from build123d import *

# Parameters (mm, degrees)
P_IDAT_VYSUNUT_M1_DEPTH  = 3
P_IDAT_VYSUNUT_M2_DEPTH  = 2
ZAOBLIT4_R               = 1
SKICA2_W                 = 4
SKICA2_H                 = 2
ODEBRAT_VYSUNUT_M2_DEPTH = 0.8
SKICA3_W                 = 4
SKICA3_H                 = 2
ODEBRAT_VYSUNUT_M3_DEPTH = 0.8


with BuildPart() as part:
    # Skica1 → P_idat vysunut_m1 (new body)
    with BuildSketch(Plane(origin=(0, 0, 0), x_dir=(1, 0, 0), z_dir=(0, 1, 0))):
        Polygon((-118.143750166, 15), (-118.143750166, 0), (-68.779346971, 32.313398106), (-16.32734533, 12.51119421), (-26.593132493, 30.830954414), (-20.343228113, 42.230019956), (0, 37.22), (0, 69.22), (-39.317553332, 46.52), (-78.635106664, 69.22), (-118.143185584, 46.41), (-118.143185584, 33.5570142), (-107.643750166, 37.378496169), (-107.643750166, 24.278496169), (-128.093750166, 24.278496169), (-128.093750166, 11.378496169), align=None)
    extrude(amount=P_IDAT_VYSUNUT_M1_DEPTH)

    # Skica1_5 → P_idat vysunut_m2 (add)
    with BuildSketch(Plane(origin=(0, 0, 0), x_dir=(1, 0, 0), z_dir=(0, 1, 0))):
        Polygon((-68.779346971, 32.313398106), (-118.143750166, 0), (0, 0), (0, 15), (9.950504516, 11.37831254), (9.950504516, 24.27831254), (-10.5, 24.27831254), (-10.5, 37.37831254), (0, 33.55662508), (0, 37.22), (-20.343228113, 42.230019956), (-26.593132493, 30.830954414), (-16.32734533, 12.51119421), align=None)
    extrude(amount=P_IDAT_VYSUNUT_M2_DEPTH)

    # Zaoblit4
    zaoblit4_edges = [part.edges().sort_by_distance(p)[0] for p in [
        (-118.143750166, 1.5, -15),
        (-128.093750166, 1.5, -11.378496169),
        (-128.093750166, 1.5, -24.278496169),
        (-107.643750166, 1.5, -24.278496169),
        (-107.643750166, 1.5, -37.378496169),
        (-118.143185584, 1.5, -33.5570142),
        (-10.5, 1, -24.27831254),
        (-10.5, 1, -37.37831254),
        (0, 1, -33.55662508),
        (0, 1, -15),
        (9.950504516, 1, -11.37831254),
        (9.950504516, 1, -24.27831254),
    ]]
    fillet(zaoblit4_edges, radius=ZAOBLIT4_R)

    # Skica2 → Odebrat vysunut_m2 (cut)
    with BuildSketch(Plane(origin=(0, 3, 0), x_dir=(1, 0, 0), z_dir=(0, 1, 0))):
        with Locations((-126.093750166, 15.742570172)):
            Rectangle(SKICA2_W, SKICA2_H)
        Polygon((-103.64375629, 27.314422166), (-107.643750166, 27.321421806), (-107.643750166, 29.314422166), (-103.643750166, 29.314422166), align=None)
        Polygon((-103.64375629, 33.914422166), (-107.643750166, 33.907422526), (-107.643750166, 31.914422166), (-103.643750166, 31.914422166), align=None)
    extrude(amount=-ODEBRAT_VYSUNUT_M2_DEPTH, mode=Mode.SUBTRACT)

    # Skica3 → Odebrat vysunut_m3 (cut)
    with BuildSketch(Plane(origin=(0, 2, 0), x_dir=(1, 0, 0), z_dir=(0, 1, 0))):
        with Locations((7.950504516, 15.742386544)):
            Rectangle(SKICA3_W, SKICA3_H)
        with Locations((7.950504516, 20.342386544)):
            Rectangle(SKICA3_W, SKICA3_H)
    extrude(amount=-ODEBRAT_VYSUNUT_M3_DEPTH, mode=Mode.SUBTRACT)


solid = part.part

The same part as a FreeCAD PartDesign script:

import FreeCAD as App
import Part
import Sketcher
Q = App.Units.Quantity


def edges_at(feature, points):
    """Names of the edges that pass closest to the given points."""
    edges = feature.Shape.Edges
    near = lambda p: min(range(len(edges)), key=lambda i: edges[i].distToShape(Part.Vertex(*p))[0])
    return sorted({f"Edge{near(p) + 1}" for p in points})

doc = App.newDocument("Part")
body = doc.addObject("PartDesign::Body", "Body")

# Sketch on XZ plane
sketch1 = body.newObject("Sketcher::SketchObject", "Sketch")
sketch1.AttachmentSupport = (doc.getObject("XZ_Plane"), [""])
sketch1.MapMode = "FlatFace"
sketch1.addGeometry([
    Part.LineSegment(App.Vector(-118, -15, 0), App.Vector(-118, 0, 0)),  # 0
    Part.LineSegment(App.Vector(-118, 0, 0), App.Vector(-69, -32, 0)),  # 1
    Part.LineSegment(App.Vector(-69, -32, 0), App.Vector(-16, -13, 0)),  # 2
    Part.LineSegment(App.Vector(-16, -13, 0), App.Vector(-27, -31, 0)),  # 3
    Part.LineSegment(App.Vector(-27, -31, 0), App.Vector(-20, -42, 0)),  # 4
    Part.LineSegment(App.Vector(-20, -42, 0), App.Vector(0, -37, 0)),  # 5
    Part.LineSegment(App.Vector(0, -37, 0), App.Vector(0, -69, 0)),  # 6
    Part.LineSegment(App.Vector(0, -69, 0), App.Vector(-39, -47, 0)),  # 7
    Part.LineSegment(App.Vector(-39, -47, 0), App.Vector(-79, -69, 0)),  # 8
    Part.LineSegment(App.Vector(-79, -69, 0), App.Vector(-118, -46, 0)),  # 9
    Part.LineSegment(App.Vector(-118, -46, 0), App.Vector(-118, -34, 0)),  # 10
    Part.LineSegment(App.Vector(-118, -34, 0), App.Vector(-108, -37, 0)),  # 11
    Part.LineSegment(App.Vector(-108, -37, 0), App.Vector(-108, -24, 0)),  # 12
    Part.LineSegment(App.Vector(-108, -24, 0), App.Vector(-128, -24, 0)),  # 13
    Part.LineSegment(App.Vector(-128, -24, 0), App.Vector(-128, -11, 0)),  # 14
    Part.LineSegment(App.Vector(-128, -11, 0), App.Vector(-118, -15, 0)),  # 15
], False)
sketch1.addConstraint([
    Sketcher.Constraint("Coincident", 0, 2, 1, 1),
    Sketcher.Constraint("Coincident", 1, 2, 2, 1),
    Sketcher.Constraint("Coincident", 2, 2, 3, 1),
    Sketcher.Constraint("Coincident", 3, 2, 4, 1),
    Sketcher.Constraint("Coincident", 4, 2, 5, 1),
    Sketcher.Constraint("Coincident", 5, 2, 6, 1),
    Sketcher.Constraint("Coincident", 6, 2, 7, 1),
    Sketcher.Constraint("Coincident", 7, 2, 8, 1),
    Sketcher.Constraint("Coincident", 8, 2, 9, 1),
    Sketcher.Constraint("Coincident", 9, 2, 10, 1),
    Sketcher.Constraint("Coincident", 10, 2, 11, 1),
    Sketcher.Constraint("Coincident", 11, 2, 12, 1),
    Sketcher.Constraint("Coincident", 12, 2, 13, 1),
    Sketcher.Constraint("Coincident", 13, 2, 14, 1),
    Sketcher.Constraint("Coincident", 14, 2, 15, 1),
    Sketcher.Constraint("Coincident", 15, 2, 0, 1),
    Sketcher.Constraint("Vertical", 0),
    Sketcher.Constraint("Vertical", 6),
    Sketcher.Constraint("Vertical", 10),
    Sketcher.Constraint("Vertical", 12),
    Sketcher.Constraint("Horizontal", 13),
    Sketcher.Constraint("Vertical", 14),
    Sketcher.Constraint("PointOnObject", 0, 2, -1),
    Sketcher.Constraint("PointOnObject", 5, 2, -2),
    Sketcher.Constraint("Parallel", 7, 9),
    Sketcher.Constraint("Parallel", 11, 15),
    Sketcher.Constraint("Horizontal", 6, 2, 8, 2),
    Sketcher.Constraint("Equal", 7, 8),
    Sketcher.Constraint("DistanceY", 0, 1, 0, 2, Q("15 mm")),
    Sketcher.Constraint("DistanceY", 6, 2, 6, 1, Q("32 mm")),
    Sketcher.Constraint("Angle", 7, Q("150 deg")),
    Sketcher.Constraint("Angle", 11, Q("-20 deg")),
    Sketcher.Constraint("Distance", 1, Q("59 mm")),
    Sketcher.Constraint("Distance", 3, Q("21 mm")),
    Sketcher.Constraint("Distance", 4, Q("13 mm")),
    Sketcher.Constraint("DistanceY", 12, 1, 12, 2, Q("13.1 mm")),
    Sketcher.Constraint("DistanceY", 14, 1, 14, 2, Q("12.9 mm")),
    Sketcher.Constraint("Distance", 7, Q("45.4 mm")),
    Sketcher.Constraint("DistanceX", 13, 2, 13, 1, Q("20.45 mm")),
    Sketcher.Constraint("DistanceX", 0, 2, 11, 2, Q("10.5 mm")),
    Sketcher.Constraint("Distance", 9, Q("45.62 mm")),
    Sketcher.Constraint("DistanceY", 5, 2, -1, 1, Q("37.22 mm")),
    Sketcher.Constraint("DistanceX", 1, 2, 2, 2, Q("52.452002 mm")),
    Sketcher.Constraint("DistanceY", 1, 2, -1, 1, Q("32.313398 mm")),
    Sketcher.Constraint("DistanceY", 10, 1, 10, 2, Q("12.852986 mm")),
    Sketcher.Constraint("DistanceX", 4, 2, -1, 1, Q("20.343228 mm")),
    Sketcher.Constraint("DistanceY", 4, 2, -1, 1, Q("42.23002 mm")),
    Sketcher.Constraint("DistanceY", 3, 2, 2, 2, Q("18.31976 mm")),
])
pad1 = body.newObject("PartDesign::Pad", "Pad")
pad1.Profile = sketch1
pad1.Length = 3
pad1.Reversed = True

# Sketch on XZ plane
sketch2 = body.newObject("Sketcher::SketchObject", "Sketch001")
sketch2.AttachmentSupport = (doc.getObject("XZ_Plane"), [""])
sketch2.MapMode = "FlatFace"
sketch2.addGeometry([
    Part.LineSegment(App.Vector(-68.8, -32.3, 0), App.Vector(-118.1, 0, 0)),  # 0
    Part.LineSegment(App.Vector(-118.1, 0, 0), App.Vector(0, 0, 0)),  # 1
    Part.LineSegment(App.Vector(0, 0, 0), App.Vector(0, -15, 0)),  # 2
    Part.LineSegment(App.Vector(0, -15, 0), App.Vector(10, -11.4, 0)),  # 3
    Part.LineSegment(App.Vector(10, -11.4, 0), App.Vector(10, -24.3, 0)),  # 4
    Part.LineSegment(App.Vector(10, -24.3, 0), App.Vector(-10.5, -24.3, 0)),  # 5
    Part.LineSegment(App.Vector(-10.5, -24.3, 0), App.Vector(-10.5, -37.4, 0)),  # 6
    Part.LineSegment(App.Vector(-10.5, -37.4, 0), App.Vector(0, -33.6, 0)),  # 7
    Part.LineSegment(App.Vector(0, -33.6, 0), App.Vector(0, -37.2, 0)),  # 8
    Part.LineSegment(App.Vector(0, -37.2, 0), App.Vector(-20.3, -42.2, 0)),  # 9
    Part.LineSegment(App.Vector(-20.3, -42.2, 0), App.Vector(-26.6, -30.8, 0)),  # 10
    Part.LineSegment(App.Vector(-26.6, -30.8, 0), App.Vector(-16.3, -12.5, 0)),  # 11
    Part.LineSegment(App.Vector(-16.3, -12.5, 0), App.Vector(-68.8, -32.3, 0)),  # 12
], False)
sketch2.addConstraint([
    Sketcher.Constraint("Coincident", 0, 2, 1, 1),
    Sketcher.Constraint("Coincident", 1, 2, 2, 1),
    Sketcher.Constraint("Coincident", 2, 2, 3, 1),
    Sketcher.Constraint("Coincident", 3, 2, 4, 1),
    Sketcher.Constraint("Coincident", 4, 2, 5, 1),
    Sketcher.Constraint("Coincident", 5, 2, 6, 1),
    Sketcher.Constraint("Coincident", 6, 2, 7, 1),
    Sketcher.Constraint("Coincident", 7, 2, 8, 1),
    Sketcher.Constraint("Coincident", 8, 2, 9, 1),
    Sketcher.Constraint("Coincident", 9, 2, 10, 1),
    Sketcher.Constraint("Coincident", 10, 2, 11, 1),
    Sketcher.Constraint("Coincident", 11, 2, 12, 1),
    Sketcher.Constraint("Coincident", 12, 2, 0, 1),
    Sketcher.Constraint("Horizontal", 1),
    Sketcher.Constraint("Vertical", 2),
    Sketcher.Constraint("Vertical", 4),
    Sketcher.Constraint("Horizontal", 5),
    Sketcher.Constraint("Vertical", 6),
    Sketcher.Constraint("Vertical", 8),
    Sketcher.Constraint("Coincident", 1, 2, -1, 1),
    Sketcher.Constraint("PointOnObject", 7, 2, -2),
    Sketcher.Constraint("Parallel", 3, 7),
    Sketcher.Constraint("DistanceY", 2, 2, 2, 1, Q("15 mm")),
    Sketcher.Constraint("Angle", 3, Q("20 deg")),
    Sketcher.Constraint("Distance", 0, Q("59 mm")),
    Sketcher.Constraint("Distance", 10, Q("13 mm")),
    Sketcher.Constraint("Distance", 11, Q("21 mm")),
    Sketcher.Constraint("DistanceY", 4, 2, 4, 1, Q("12.9 mm")),
    Sketcher.Constraint("DistanceY", 6, 2, 6, 1, Q("13.1 mm")),
    Sketcher.Constraint("DistanceX", 5, 2, -1, 1, Q("10.5 mm")),
    Sketcher.Constraint("DistanceY", 8, 2, -1, 1, Q("37.22 mm")),
    Sketcher.Constraint("DistanceX", 12, 2, 11, 2, Q("52.452002 mm")),
    Sketcher.Constraint("DistanceX", 1, 1, 1, 2, Q("118.14375 mm")),
    Sketcher.Constraint("DistanceY", 12, 2, -1, 1, Q("32.313398 mm")),
    Sketcher.Constraint("DistanceX", 5, 2, 5, 1, Q("20.450505 mm")),
    Sketcher.Constraint("DistanceX", 9, 2, -1, 1, Q("20.343228 mm")),
    Sketcher.Constraint("DistanceY", 9, 2, -1, 1, Q("42.23002 mm")),
    Sketcher.Constraint("DistanceY", 6, 2, 10, 2, Q("6.547358 mm")),
])
pad2 = body.newObject("PartDesign::Pad", "Pad001")
pad2.Profile = sketch2
pad2.Length = 2
pad2.Reversed = True
doc.recompute()

fillet = body.newObject("PartDesign::Fillet", "Fillet")
fillet.Base = (pad2, edges_at(pad2, [
    (-118.144, 1.5, -15),
    (-128.094, 1.5, -11.378),
    (-128.094, 1.5, -24.278),
    (-107.644, 1.5, -24.278),
    (-107.644, 1.5, -37.378),
    (-118.143, 1.5, -33.557),
    (-10.5, 1, -24.278),
    (-10.5, 1, -37.378),
    (0, 1, -33.557),
    (0, 1, -15),
    (9.951, 1, -11.378),
    (9.951, 1, -24.278),
]))
fillet.Radius = 1

# Sketch on XZ plane
sketch3 = body.newObject("Sketcher::SketchObject", "Sketch002")
sketch3.AttachmentSupport = (doc.getObject("XZ_Plane"), [""])
sketch3.MapMode = "FlatFace"
sketch3.AttachmentOffset = App.Placement(App.Vector(0, 0, -3), App.Rotation())
sketch3.addGeometry([
    Part.LineSegment(App.Vector(-128.1, -16.7, 0), App.Vector(-128.1, -14.7, 0)),  # 0
    Part.LineSegment(App.Vector(-128.1, -14.7, 0), App.Vector(-124.1, -14.7, 0)),  # 1
    Part.LineSegment(App.Vector(-124.1, -14.7, 0), App.Vector(-124.1, -16.7, 0)),  # 2
    Part.LineSegment(App.Vector(-124.1, -16.7, 0), App.Vector(-128.1, -16.7, 0)),  # 3
    Part.LineSegment(App.Vector(-107.6, -27.3, 0), App.Vector(-103.6, -27.3, 0)),  # 4
    Part.LineSegment(App.Vector(-103.6, -27.3, 0), App.Vector(-103.6, -29.3, 0)),  # 5
    Part.LineSegment(App.Vector(-103.6, -29.3, 0), App.Vector(-107.6, -29.3, 0)),  # 6
    Part.LineSegment(App.Vector(-107.6, -29.3, 0), App.Vector(-107.6, -27.3, 0)),  # 7
    Part.LineSegment(App.Vector(-103.6, -33.9, 0), App.Vector(-107.6, -33.9, 0)),  # 8
    Part.LineSegment(App.Vector(-107.6, -33.9, 0), App.Vector(-107.6, -31.9, 0)),  # 9
    Part.LineSegment(App.Vector(-107.6, -31.9, 0), App.Vector(-103.6, -31.9, 0)),  # 10
    Part.LineSegment(App.Vector(-103.6, -31.9, 0), App.Vector(-103.6, -33.9, 0)),  # 11
], False)
sketch3.addConstraint([
    Sketcher.Constraint("Coincident", 0, 2, 1, 1),
    Sketcher.Constraint("Coincident", 1, 2, 2, 1),
    Sketcher.Constraint("Coincident", 2, 2, 3, 1),
    Sketcher.Constraint("Coincident", 3, 2, 0, 1),
    Sketcher.Constraint("Coincident", 4, 2, 5, 1),
    Sketcher.Constraint("Coincident", 5, 2, 6, 1),
    Sketcher.Constraint("Coincident", 6, 2, 7, 1),
    Sketcher.Constraint("Coincident", 7, 2, 4, 1),
    Sketcher.Constraint("Coincident", 8, 2, 9, 1),
    Sketcher.Constraint("Coincident", 9, 2, 10, 1),
    Sketcher.Constraint("Coincident", 10, 2, 11, 1),
    Sketcher.Constraint("Coincident", 11, 2, 8, 1),
    Sketcher.Constraint("Vertical", 0),
    Sketcher.Constraint("Horizontal", 1),
    Sketcher.Constraint("Vertical", 2),
    Sketcher.Constraint("Horizontal", 3),
    Sketcher.Constraint("Horizontal", 6),
    Sketcher.Constraint("Vertical", 7),
    Sketcher.Constraint("Vertical", 9),
    Sketcher.Constraint("Horizontal", 10),
    Sketcher.Constraint("Vertical", 7, 2, 8, 2),
    Sketcher.Constraint("Vertical", 5, 2, 10, 2),
    Sketcher.Constraint("Vertical", 4, 2, 11, 2),
    Sketcher.Constraint("Equal", 3, 6),
    Sketcher.Constraint("Equal", 7, 9),
    Sketcher.Constraint("Equal", 5, 11),
    Sketcher.Constraint("DistanceX", 1, 1, 1, 2, Q("4 mm")),
    Sketcher.Constraint("DistanceY", 0, 1, 0, 2, Q("2 mm")),
    Sketcher.Constraint("Distance", 4, Q("4 mm")),
    Sketcher.Constraint("Distance", 5, Q("2 mm")),
    Sketcher.Constraint("DistanceY", 9, 2, 6, 2, Q("2.6 mm")),
    Sketcher.Constraint("DistanceY", 7, 1, 7, 2, Q("1.993 mm")),
    Sketcher.Constraint("DistanceX", 2, 2, 5, 2, Q("20.45 mm")),
    Sketcher.Constraint("DistanceX", 0, 2, -1, 1, Q("128.09375 mm")),
    Sketcher.Constraint("DistanceY", 0, 2, -1, 1, Q("14.74257 mm")),
    Sketcher.Constraint("DistanceY", 7, 2, -1, 1, Q("27.321422 mm")),
])
pocket1 = body.newObject("PartDesign::Pocket", "Pocket")
pocket1.Profile = sketch3
pocket1.Length = 0.8
pocket1.Reversed = True

# Sketch on XZ plane
sketch4 = body.newObject("Sketcher::SketchObject", "Sketch003")
sketch4.AttachmentSupport = (doc.getObject("XZ_Plane"), [""])
sketch4.MapMode = "FlatFace"
sketch4.AttachmentOffset = App.Placement(App.Vector(0, 0, -2), App.Rotation())
sketch4.addGeometry([
    Part.LineSegment(App.Vector(6, -16.7, 0), App.Vector(6, -14.7, 0)),  # 0
    Part.LineSegment(App.Vector(6, -14.7, 0), App.Vector(10, -14.7, 0)),  # 1
    Part.LineSegment(App.Vector(10, -14.7, 0), App.Vector(10, -16.7, 0)),  # 2
    Part.LineSegment(App.Vector(10, -16.7, 0), App.Vector(6, -16.7, 0)),  # 3
    Part.LineSegment(App.Vector(6, -21.3, 0), App.Vector(6, -19.3, 0)),  # 4
    Part.LineSegment(App.Vector(6, -19.3, 0), App.Vector(10, -19.3, 0)),  # 5
    Part.LineSegment(App.Vector(10, -19.3, 0), App.Vector(10, -21.3, 0)),  # 6
    Part.LineSegment(App.Vector(10, -21.3, 0), App.Vector(6, -21.3, 0)),  # 7
], False)
sketch4.addConstraint([
    Sketcher.Constraint("Coincident", 0, 2, 1, 1),
    Sketcher.Constraint("Coincident", 1, 2, 2, 1),
    Sketcher.Constraint("Coincident", 2, 2, 3, 1),
    Sketcher.Constraint("Coincident", 3, 2, 0, 1),
    Sketcher.Constraint("Coincident", 4, 2, 5, 1),
    Sketcher.Constraint("Coincident", 5, 2, 6, 1),
    Sketcher.Constraint("Coincident", 6, 2, 7, 1),
    Sketcher.Constraint("Coincident", 7, 2, 4, 1),
    Sketcher.Constraint("Vertical", 0),
    Sketcher.Constraint("Horizontal", 1),
    Sketcher.Constraint("Vertical", 2),
    Sketcher.Constraint("Horizontal", 3),
    Sketcher.Constraint("Vertical", 4),
    Sketcher.Constraint("Horizontal", 5),
    Sketcher.Constraint("Vertical", 6),
    Sketcher.Constraint("Horizontal", 7),
    Sketcher.Constraint("Vertical", 3, 2, 4, 2),
    Sketcher.Constraint("Vertical", 2, 2, 5, 2),
    Sketcher.Constraint("Equal", 2, 4),
    Sketcher.Constraint("DistanceX", 1, 1, 1, 2, Q("4 mm")),
    Sketcher.Constraint("DistanceY", 0, 1, 0, 2, Q("2 mm")),
    Sketcher.Constraint("DistanceY", 4, 2, 3, 2, Q("2.6 mm")),
    Sketcher.Constraint("DistanceX", -1, 1, 0, 2, Q("5.950505 mm")),
    Sketcher.Constraint("DistanceY", 0, 2, -1, 1, Q("14.742387 mm")),
])
pocket2 = body.newObject("PartDesign::Pocket", "Pocket001")
pocket2.Profile = sketch4
pocket2.Length = 0.8
pocket2.Reversed = True

doc.recompute()
